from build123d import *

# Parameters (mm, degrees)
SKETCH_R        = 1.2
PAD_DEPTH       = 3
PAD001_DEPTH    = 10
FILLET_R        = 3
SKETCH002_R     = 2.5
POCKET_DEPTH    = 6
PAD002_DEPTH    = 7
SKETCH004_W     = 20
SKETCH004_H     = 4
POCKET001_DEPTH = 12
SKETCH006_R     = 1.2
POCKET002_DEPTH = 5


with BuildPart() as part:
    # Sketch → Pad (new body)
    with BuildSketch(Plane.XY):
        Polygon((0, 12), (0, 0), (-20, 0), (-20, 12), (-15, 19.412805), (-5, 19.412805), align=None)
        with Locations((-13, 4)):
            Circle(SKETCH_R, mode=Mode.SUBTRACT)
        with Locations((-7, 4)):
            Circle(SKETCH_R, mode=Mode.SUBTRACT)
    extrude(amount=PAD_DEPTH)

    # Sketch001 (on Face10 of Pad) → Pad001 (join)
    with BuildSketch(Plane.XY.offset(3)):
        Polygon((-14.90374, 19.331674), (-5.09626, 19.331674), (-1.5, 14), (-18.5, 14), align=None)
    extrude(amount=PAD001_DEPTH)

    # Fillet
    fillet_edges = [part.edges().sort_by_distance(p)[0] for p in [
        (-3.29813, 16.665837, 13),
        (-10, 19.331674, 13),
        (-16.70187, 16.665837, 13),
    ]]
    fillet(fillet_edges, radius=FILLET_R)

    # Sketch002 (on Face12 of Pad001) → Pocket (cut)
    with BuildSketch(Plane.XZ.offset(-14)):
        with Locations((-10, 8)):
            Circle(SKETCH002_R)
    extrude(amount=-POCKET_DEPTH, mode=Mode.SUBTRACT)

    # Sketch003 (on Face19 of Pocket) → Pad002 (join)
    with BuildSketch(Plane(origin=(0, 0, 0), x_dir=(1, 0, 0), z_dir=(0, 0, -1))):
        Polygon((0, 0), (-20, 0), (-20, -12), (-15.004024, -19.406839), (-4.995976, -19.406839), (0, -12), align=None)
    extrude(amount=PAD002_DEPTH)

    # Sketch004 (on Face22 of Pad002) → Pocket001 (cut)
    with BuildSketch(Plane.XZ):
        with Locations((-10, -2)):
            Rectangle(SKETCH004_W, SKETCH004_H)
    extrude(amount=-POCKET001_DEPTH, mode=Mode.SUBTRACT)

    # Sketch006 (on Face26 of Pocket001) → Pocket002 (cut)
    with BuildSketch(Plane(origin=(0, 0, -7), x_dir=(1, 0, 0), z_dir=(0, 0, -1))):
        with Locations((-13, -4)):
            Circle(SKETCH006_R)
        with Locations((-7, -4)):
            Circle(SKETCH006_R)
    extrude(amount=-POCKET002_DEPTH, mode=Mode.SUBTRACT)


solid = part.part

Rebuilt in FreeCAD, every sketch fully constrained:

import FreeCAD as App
import Part
import Sketcher
Q = App.Units.Quantity


def edges_at(feature, points):
    """Names of the edges that pass closest to the given points."""
    edges = feature.Shape.Edges
    near = lambda p: min(range(len(edges)), key=lambda i: edges[i].distToShape(Part.Vertex(*p))[0])
    return sorted({f"Edge{near(p) + 1}" for p in points})


def add_polygon(sketch, points):
    """Adds a closed chain of lines whose ends are joined by coincident constraints."""
    first, n = sketch.GeometryCount, len(points)
    for a, b in zip(points, points[1:] + points[:1]):
        sketch.addGeometry(Part.LineSegment(App.Vector(*a, 0), App.Vector(*b, 0)), False)
    for i in range(n):
        sketch.addConstraint(Sketcher.Constraint("Coincident", first + i, 2, first + (i + 1) % n, 1))

doc = App.newDocument("Part")
params = doc.addObject("Spreadsheet::Sheet", "Params")
for row, (alias, value) in enumerate([
    ("sketch1_diameter", "2.4 mm"),
    ("sketch1_width", "10 mm"),
    ("sketch1_width2", "20 mm"),
    ("sketch1_height", "12 mm"),
    ("pad1_length", "3 mm"),
    ("sketch2_width", "17 mm"),
    ("pad2_length", "10 mm"),
    ("fillet_radius", "3 mm"),
    ("sketch3_diameter", "5 mm"),
    ("pocket1_length", "6 mm"),
    ("sketch4_width", "20 mm"),
    ("sketch4_height", "12 mm"),
    ("pad3_length", "7 mm"),
    ("sketch5_width", "20 mm"),
    ("sketch5_height", "4 mm"),
    ("pocket2_length", "12 mm"),
    ("sketch6_diameter", "2.4 mm"),
    ("pocket3_length", "5 mm"),
], start=1):
    params.set(f"A{row}", alias)
    params.set(f"B{row}", "=" + value)
    params.setAlias(f"B{row}", alias)

body = doc.addObject("PartDesign::Body", "Body")

sketch1 = body.newObject("Sketcher::SketchObject", "Sketch")
sketch1.AttachmentSupport = (doc.getObject("XY_Plane"), [""])
sketch1.MapMode = "FlatFace"
add_polygon(sketch1, [(0, 0), (0, 12), (-5, 19.4), (-15, 19.4), (-20, 12), (-20, 0)])
sketch1.addGeometry(Part.Circle(App.Vector(-7, 4, 0), App.Vector(0, 0, 1), 1.2), False)
sketch1.addGeometry(Part.Circle(App.Vector(-13, 4, 0), App.Vector(0, 0, 1), 1.2), False)
sketch1.addConstraint([
    Sketcher.Constraint("Vertical", 0),
    Sketcher.Constraint("Horizontal", 2),
    Sketcher.Constraint("Vertical", 4),
    Sketcher.Constraint("Horizontal", 5),
    Sketcher.Constraint("Coincident", 5, 2, -1, 1),
    Sketcher.Constraint("Equal", 6, 7),
    Sketcher.Constraint("Horizontal", 6, 3, 7, 3),
    Sketcher.Constraint("Horizontal", 0, 2, 3, 2),
    Sketcher.Constraint("Equal", 1, 3),
    Sketcher.Constraint("Diameter", 6, 2.4),
    Sketcher.Constraint("DistanceX", 2, 2, 2, 1, 10.0),
    Sketcher.Constraint("DistanceX", 5, 1, 5, 2, 20.0),
    Sketcher.Constraint("DistanceY", 0, 1, 0, 2, 12.0),
    Sketcher.Constraint("Angle", 1, Q("123.999999 deg")),
    Sketcher.Constraint("DistanceX", 6, 3, -1, 1, 7.0),
    Sketcher.Constraint("DistanceY", -1, 1, 6, 3, 4.0),
    Sketcher.Constraint("DistanceX", 7, 3, -1, 1, 13.0),
])
sketch1.setExpression("Constraints[15]", "Params.sketch1_diameter")
sketch1.setExpression("Constraints[16]", "Params.sketch1_width")
sketch1.setExpression("Constraints[17]", "Params.sketch1_width2")
sketch1.setExpression("Constraints[18]", "Params.sketch1_height")
pad1 = body.newObject("PartDesign::Pad", "Pad")
pad1.Profile = sketch1
pad1.setExpression("Length", "Params.pad1_length")

sketch2 = body.newObject("Sketcher::SketchObject", "Sketch001")
sketch2.AttachmentSupport = (doc.getObject("XY_Plane"), [""])
sketch2.MapMode = "FlatFace"
sketch2.AttachmentOffset = App.Placement(App.Vector(0, 0, 3), App.Rotation())
add_polygon(sketch2, [(-5, 19), (-15, 19), (-18, 14), (-2, 14)])
sketch2.addConstraint([
    Sketcher.Constraint("Horizontal", 0),
    Sketcher.Constraint("Horizontal", 2),
    Sketcher.Constraint("Equal", 1, 3),
    Sketcher.Constraint("DistanceX", 2, 1, 2, 2, 17.0),
    Sketcher.Constraint("Angle", 1, Q("-124.000004 deg")),
    Sketcher.Constraint("DistanceY", -1, 1, 1, 2, 14.0),
    Sketcher.Constraint("DistanceX", 1, 2, -1, 1, 18.5),
    Sketcher.Constraint("DistanceX", 0, 2, 0, 1, 9.80748),
])
sketch2.setExpression("Constraints[7]", "Params.sketch2_width")
pad2 = body.newObject("PartDesign::Pad", "Pad001")
pad2.Profile = sketch2
pad2.setExpression("Length", "Params.pad2_length")
doc.recompute()

fillet = body.newObject("PartDesign::Fillet", "Fillet")
fillet.Base = (pad2, edges_at(pad2, [(-3.298, 16.666, 13), (-10, 19.332, 13), (-16.702, 16.666, 13)]))
fillet.setExpression("Radius", "Params.fillet_radius")

sketch3 = body.newObject("Sketcher::SketchObject", "Sketch002")
sketch3.AttachmentSupport = (doc.getObject("XZ_Plane"), [""])
sketch3.MapMode = "FlatFace"
sketch3.AttachmentOffset = App.Placement(App.Vector(0, 0, -14), App.Rotation())
sketch3.addGeometry(Part.Circle(App.Vector(-10, 8, 0), App.Vector(0, 0, 1), 2.5), False)
sketch3.addConstraint([
    Sketcher.Constraint("Diameter", 0, 5.0),
    Sketcher.Constraint("DistanceX", 0, 3, -1, 1, 10.0),
    Sketcher.Constraint("DistanceY", -1, 1, 0, 3, 8.0),
])
sketch3.setExpression("Constraints[0]", "Params.sketch3_diameter")
pocket1 = body.newObject("PartDesign::Pocket", "Pocket")
pocket1.Profile = sketch3
pocket1.setExpression("Length", "Params.pocket1_length")

sketch4 = body.newObject("Sketcher::SketchObject", "Sketch003")
sketch4.AttachmentSupport = (doc.getObject("XY_Plane"), [""])
sketch4.MapMode = "FlatFace"
add_polygon(sketch4, [(0, 0), (-20, 0), (-20, 12), (-15, 19), (-5, 19), (0, 12)])
sketch4.addConstraint([
    Sketcher.Constraint("Horizontal", 0),
    Sketcher.Constraint("Vertical", 1),
    Sketcher.Constraint("Horizontal", 3),
    Sketcher.Constraint("Vertical", 5),
    Sketcher.Constraint("Coincident", 5, 2, -1, 1),
    Sketcher.Constraint("Horizontal", 1, 2, 4, 2),
    Sketcher.Constraint("Equal", 2, 4),
    Sketcher.Constraint("DistanceX", 0, 2, 0, 1, 20.0),
    Sketcher.Constraint("DistanceY", 1, 1, 1, 2, 12.0),
    Sketcher.Constraint("Angle", 2, Q("56 deg")),
    Sketcher.Constraint("DistanceX", 3, 1, 3, 2, 10.008048),
])
sketch4.setExpression("Constraints[13]", "Params.sketch4_width")
sketch4.setExpression("Constraints[14]", "Params.sketch4_height")
pad3 = body.newObject("PartDesign::Pad", "Pad002")
pad3.Profile = sketch4
pad3.setExpression("Length", "Params.pad3_length")
pad3.Reversed = True

sketch5 = body.newObject("Sketcher::SketchObject", "Sketch004")
sketch5.AttachmentSupport = (doc.getObject("XZ_Plane"), [""])
sketch5.MapMode = "FlatFace"
add_polygon(sketch5, [(-20, 0), (-20, -4), (0, -4), (0, 0)])
sketch5.addConstraint([
    Sketcher.Constraint("Vertical", 0),
    Sketcher.Constraint("Horizontal", 1),
    Sketcher.Constraint("Vertical", 2),
    Sketcher.Constraint("Horizontal", 3),
    Sketcher.Constraint("Coincident", 2, 2, -1, 1),
    Sketcher.Constraint("DistanceX", 1, 1, 1, 2, 20.0),
    Sketcher.Constraint("DistanceY", 0, 2, 0, 1, 4.0),
])
sketch5.setExpression("Constraints[9]", "Params.sketch5_width")
sketch5.setExpression("Constraints[10]", "Params.sketch5_height")
pocket2 = body.newObject("PartDesign::Pocket", "Pocket001")
pocket2.Profile = sketch5
pocket2.setExpression("Length", "Params.pocket2_length")

sketch6 = body.newObject("Sketcher::SketchObject", "Sketch005")
sketch6.AttachmentSupport = (doc.getObject("XY_Plane"), [""])
sketch6.MapMode = "FlatFace"
sketch6.AttachmentOffset = App.Placement(App.Vector(0, 0, -7), App.Rotation())
sketch6.addGeometry([
    Part.Circle(App.Vector(-13, 4, 0), App.Vector(0, 0, 1), 1.2),
    Part.Circle(App.Vector(-7, 4, 0), App.Vector(0, 0, 1), 1.2),
], False)
sketch6.addConstraint([
    Sketcher.Constraint("Equal", 0, 1),
    Sketcher.Constraint("Horizontal", 0, 3, 1, 3),
    Sketcher.Constraint("Diameter", 0, 2.4),
    Sketcher.Constraint("DistanceX", 0, 3, -1, 1, 13.0),
    Sketcher.Constraint("DistanceY", -1, 1, 0, 3, 4.0),
    Sketcher.Constraint("DistanceX", 1, 3, -1, 1, 7.0),
])
sketch6.setExpression("Constraints[2]", "Params.sketch6_diameter")
pocket3 = body.newObject("PartDesign::Pocket", "Pocket002")
pocket3.Profile = sketch6
pocket3.setExpression("Length", "Params.pocket3_length")
pocket3.Reversed = True

doc.recompute()
